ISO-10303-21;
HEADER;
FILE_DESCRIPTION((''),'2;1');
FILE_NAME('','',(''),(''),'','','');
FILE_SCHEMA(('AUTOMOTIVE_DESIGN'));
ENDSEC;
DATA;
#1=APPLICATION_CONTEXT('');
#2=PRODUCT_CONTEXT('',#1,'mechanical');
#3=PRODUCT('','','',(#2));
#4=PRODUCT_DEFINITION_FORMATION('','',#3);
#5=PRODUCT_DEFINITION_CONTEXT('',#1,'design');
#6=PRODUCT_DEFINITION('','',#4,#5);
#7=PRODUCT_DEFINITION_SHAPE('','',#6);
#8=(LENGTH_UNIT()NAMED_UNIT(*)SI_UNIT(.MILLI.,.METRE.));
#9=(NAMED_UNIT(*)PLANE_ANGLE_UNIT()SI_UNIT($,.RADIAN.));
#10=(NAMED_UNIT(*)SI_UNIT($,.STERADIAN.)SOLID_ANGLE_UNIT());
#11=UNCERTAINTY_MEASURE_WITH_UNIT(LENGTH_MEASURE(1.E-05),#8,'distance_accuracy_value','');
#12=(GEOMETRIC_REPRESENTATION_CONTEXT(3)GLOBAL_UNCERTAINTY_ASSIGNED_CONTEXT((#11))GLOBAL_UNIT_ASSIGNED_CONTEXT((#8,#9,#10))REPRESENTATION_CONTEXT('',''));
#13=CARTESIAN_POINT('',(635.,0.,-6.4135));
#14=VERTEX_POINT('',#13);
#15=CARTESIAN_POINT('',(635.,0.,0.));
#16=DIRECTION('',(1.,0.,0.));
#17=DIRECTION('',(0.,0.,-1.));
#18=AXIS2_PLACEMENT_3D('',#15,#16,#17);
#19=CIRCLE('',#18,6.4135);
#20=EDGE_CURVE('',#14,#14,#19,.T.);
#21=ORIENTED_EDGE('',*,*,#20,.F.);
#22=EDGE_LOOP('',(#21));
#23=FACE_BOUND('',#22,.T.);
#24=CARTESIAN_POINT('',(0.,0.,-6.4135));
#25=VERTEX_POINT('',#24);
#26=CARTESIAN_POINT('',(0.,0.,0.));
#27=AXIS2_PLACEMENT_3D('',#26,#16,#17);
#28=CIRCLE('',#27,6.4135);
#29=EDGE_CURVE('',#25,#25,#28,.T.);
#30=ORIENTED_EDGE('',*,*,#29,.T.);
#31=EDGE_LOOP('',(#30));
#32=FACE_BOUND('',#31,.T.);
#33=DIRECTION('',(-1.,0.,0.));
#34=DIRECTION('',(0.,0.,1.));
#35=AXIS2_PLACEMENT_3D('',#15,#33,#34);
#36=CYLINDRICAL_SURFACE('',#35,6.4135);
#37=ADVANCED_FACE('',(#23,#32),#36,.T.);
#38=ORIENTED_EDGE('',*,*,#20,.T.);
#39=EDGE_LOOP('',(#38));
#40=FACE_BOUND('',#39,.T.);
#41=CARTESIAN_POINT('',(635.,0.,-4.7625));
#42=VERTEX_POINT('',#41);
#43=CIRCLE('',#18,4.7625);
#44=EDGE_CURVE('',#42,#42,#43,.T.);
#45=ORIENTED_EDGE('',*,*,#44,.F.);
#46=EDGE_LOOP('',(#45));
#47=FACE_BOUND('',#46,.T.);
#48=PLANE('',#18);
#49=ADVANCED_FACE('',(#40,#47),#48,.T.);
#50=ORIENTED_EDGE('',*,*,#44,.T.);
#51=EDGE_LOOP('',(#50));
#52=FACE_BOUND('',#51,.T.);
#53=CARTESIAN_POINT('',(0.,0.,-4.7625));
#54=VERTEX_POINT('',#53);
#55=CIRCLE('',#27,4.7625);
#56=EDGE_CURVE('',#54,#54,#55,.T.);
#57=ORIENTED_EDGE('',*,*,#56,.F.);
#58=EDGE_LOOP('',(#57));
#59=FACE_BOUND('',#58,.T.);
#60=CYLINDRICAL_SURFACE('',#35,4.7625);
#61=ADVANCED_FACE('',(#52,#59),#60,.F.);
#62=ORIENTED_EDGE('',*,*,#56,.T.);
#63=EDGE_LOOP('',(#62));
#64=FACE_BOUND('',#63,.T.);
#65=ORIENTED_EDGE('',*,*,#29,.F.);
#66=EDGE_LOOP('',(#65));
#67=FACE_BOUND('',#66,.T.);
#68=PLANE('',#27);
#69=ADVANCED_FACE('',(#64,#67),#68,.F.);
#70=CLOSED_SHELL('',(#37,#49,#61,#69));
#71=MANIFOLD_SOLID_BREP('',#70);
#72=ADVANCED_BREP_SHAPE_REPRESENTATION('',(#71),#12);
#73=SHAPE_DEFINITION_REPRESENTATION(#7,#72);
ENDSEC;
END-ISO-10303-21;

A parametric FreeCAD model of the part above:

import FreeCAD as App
import Part
import Sketcher
Q = App.Units.Quantity

doc = App.newDocument("Part")
body = doc.addObject("PartDesign::Body", "Body")

sketch1 = doc.addObject("Sketcher::SketchObject", "Sketch")
body.addObject(sketch1)
sketch1.AttachmentSupport = (doc.YZ_Plane, [""])
sketch1.MapMode = "FlatFace"
sketch1.addGeometry([
    Part.Circle(App.Vector(0, 0, 0), App.Vector(0, 0, 1), 6.4),
    Part.Circle(App.Vector(0, 0, 0), App.Vector(0, 0, 1), 4.8),
], False)
sketch1.addConstraint([
    Sketcher.Constraint("Coincident", 0, 3, -1, 1),
    Sketcher.Constraint("Coincident", 1, 3, -1, 1),
    Sketcher.Constraint("Diameter", 0, Q("0.505 in")),
    Sketcher.Constraint("Diameter", 1, Q("0.375 in")),
])
pad1 = doc.addObject("PartDesign::Pad", "Pad")
body.addObject(pad1)
pad1.Profile = sketch1
pad1.Length = Q("25 in")

doc.recompute()
